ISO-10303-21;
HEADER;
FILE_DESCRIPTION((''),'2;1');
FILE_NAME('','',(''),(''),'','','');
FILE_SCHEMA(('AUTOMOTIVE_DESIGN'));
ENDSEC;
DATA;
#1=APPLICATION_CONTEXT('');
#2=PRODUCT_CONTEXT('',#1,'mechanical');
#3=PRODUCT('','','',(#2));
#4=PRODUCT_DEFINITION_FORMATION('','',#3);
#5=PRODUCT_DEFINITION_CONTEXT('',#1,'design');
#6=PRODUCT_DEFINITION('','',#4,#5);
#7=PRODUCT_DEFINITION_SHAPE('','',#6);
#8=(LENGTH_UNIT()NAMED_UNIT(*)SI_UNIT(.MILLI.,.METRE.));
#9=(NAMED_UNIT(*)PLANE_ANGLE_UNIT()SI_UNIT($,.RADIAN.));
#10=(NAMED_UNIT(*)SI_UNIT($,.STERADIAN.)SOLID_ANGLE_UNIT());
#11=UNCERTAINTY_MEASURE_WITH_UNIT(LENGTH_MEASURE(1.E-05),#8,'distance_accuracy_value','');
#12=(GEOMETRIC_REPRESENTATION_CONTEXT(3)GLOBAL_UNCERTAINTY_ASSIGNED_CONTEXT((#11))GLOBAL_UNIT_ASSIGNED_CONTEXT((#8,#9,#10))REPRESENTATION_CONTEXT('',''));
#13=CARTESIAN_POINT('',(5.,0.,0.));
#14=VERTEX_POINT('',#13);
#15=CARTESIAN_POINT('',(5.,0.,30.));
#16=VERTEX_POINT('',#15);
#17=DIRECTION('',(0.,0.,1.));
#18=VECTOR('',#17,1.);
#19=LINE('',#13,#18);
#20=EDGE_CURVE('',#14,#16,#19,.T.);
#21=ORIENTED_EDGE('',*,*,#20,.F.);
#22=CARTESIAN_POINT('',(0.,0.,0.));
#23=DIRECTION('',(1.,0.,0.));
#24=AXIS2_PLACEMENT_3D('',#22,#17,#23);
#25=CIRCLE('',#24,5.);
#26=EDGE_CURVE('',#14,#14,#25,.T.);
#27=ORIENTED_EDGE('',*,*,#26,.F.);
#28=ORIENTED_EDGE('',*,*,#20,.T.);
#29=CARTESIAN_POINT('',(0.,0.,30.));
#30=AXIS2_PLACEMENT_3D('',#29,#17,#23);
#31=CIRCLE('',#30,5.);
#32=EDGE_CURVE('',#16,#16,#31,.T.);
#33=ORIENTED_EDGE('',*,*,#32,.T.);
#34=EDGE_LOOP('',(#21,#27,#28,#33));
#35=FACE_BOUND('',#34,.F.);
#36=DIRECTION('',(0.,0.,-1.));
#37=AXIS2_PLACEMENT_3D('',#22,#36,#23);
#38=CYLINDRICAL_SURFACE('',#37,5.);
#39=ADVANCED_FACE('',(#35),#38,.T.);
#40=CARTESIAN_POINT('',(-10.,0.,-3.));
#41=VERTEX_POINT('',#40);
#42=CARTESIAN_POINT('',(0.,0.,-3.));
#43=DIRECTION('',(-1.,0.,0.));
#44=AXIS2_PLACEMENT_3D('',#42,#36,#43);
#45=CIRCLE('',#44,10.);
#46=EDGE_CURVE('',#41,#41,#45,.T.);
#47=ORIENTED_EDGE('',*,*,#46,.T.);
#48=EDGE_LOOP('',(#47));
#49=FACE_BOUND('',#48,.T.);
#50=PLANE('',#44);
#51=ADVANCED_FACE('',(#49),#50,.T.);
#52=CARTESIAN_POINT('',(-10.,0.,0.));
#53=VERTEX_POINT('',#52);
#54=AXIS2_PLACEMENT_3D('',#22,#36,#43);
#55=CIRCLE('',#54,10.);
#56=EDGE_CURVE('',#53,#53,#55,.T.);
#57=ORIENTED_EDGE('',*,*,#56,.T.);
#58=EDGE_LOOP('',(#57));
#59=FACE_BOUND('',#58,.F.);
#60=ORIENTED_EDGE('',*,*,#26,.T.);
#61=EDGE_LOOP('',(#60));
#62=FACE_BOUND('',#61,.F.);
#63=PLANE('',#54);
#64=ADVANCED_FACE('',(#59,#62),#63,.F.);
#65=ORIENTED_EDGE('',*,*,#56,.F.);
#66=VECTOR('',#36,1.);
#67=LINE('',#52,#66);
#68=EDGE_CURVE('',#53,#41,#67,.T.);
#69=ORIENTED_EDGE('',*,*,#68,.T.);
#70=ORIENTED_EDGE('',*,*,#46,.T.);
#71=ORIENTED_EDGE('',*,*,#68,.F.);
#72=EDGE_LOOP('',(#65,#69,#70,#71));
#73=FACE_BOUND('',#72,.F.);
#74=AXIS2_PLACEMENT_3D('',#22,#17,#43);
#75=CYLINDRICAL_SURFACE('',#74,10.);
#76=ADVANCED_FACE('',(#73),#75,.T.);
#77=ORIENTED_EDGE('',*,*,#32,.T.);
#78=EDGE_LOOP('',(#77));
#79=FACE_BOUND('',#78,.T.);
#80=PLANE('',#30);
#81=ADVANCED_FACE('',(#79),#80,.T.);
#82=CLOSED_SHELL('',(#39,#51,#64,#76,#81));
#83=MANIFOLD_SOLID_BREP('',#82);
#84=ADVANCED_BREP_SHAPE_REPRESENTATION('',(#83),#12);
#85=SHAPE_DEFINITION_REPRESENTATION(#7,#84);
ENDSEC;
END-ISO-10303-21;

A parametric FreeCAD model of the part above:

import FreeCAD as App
import Part
import Sketcher
from FreeCAD import Vector
Q = App.Units.Quantity

doc = App.newDocument("Part")
body = doc.addObject("PartDesign::Body", "Body")

# Sketch on XY plane
sketch1 = body.newObject("Sketcher::SketchObject", "Sketch")
sketch1.AttachmentSupport = (doc.getObject("XY_Plane"), [""])
sketch1.MapMode = "FlatFace"
sketch1.addGeometry(Part.Circle(Vector(0, 0, 0), Vector(0, 0, 1), 5), False)
sketch1.addConstraint(Sketcher.Constraint("Coincident", 0, 3, -1, 1))
sketch1.addConstraint(Sketcher.Constraint("Diameter", 0, Q("10 mm")))
pad1 = body.newObject("PartDesign::Pad", "Pad")
pad1.Profile = sketch1
pad1.Length = 30

# Sketch on XY plane
sketch2 = body.newObject("Sketcher::SketchObject", "Sketch001")
sketch2.AttachmentSupport = (doc.getObject("XY_Plane"), [""])
sketch2.MapMode = "FlatFace"
sketch2.addGeometry(Part.Circle(Vector(0, 0, 0), Vector(0, 0, 1), 10), False)
sketch2.addConstraint(Sketcher.Constraint("Coincident", 0, 3, -1, 1))
sketch2.addConstraint(Sketcher.Constraint("Diameter", 0, Q("20 mm")))
pad2 = body.newObject("PartDesign::Pad", "Pad001")
pad2.Profile = sketch2
pad2.Length = 3
pad2.Reversed = True

doc.recompute()
